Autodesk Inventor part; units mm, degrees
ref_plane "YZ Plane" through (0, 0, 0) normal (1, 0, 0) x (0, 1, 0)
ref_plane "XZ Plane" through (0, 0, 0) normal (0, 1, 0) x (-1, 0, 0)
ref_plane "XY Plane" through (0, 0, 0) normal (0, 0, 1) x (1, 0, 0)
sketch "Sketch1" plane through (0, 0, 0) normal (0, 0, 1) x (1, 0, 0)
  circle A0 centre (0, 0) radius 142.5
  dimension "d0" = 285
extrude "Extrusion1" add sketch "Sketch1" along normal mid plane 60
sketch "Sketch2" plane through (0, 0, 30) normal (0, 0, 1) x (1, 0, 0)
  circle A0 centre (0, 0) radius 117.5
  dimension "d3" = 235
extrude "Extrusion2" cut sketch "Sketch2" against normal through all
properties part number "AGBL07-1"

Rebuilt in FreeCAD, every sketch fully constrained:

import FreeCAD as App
import Part
import Sketcher

V = App.Vector
Q = App.Units.Quantity

doc = App.newDocument("Part")
body = doc.addObject("PartDesign::Body", "Body")

sketch1 = body.newObject("Sketcher::SketchObject", "Sketch")
sketch1.AttachmentSupport = (doc.getObject("XY_Plane"), [""])
sketch1.MapMode = "FlatFace"
sketch1.addGeometry(Part.Circle(V(0, 0, 0), V(0, 0, 1), 142), False)
sketch1.addConstraint(Sketcher.Constraint("Coincident", 0, 3, -1, 1))
sketch1.addConstraint(Sketcher.Constraint("Diameter", 0, Q("285 mm")))
pad1 = body.newObject("PartDesign::Pad", "Pad")
pad1.Profile = sketch1
pad1.Length = 60
pad1.Midplane = True

sketch2 = body.newObject("Sketcher::SketchObject", "Sketch001")
sketch2.AttachmentSupport = (doc.getObject("XY_Plane"), [""])
sketch2.MapMode = "FlatFace"
sketch2.AttachmentOffset = App.Placement(V(0, 0, 30), App.Rotation())
sketch2.addGeometry(Part.Circle(V(0, 0, 0), V(0, 0, 1), 118), False)
sketch2.addConstraint(Sketcher.Constraint("Coincident", 0, 3, -1, 1))
sketch2.addConstraint(Sketcher.Constraint("Diameter", 0, Q("235 mm")))
pocket1 = body.newObject("PartDesign::Pocket", "Pocket")
pocket1.Profile = sketch2
pocket1.Type = "ThroughAll"

doc.recompute()
